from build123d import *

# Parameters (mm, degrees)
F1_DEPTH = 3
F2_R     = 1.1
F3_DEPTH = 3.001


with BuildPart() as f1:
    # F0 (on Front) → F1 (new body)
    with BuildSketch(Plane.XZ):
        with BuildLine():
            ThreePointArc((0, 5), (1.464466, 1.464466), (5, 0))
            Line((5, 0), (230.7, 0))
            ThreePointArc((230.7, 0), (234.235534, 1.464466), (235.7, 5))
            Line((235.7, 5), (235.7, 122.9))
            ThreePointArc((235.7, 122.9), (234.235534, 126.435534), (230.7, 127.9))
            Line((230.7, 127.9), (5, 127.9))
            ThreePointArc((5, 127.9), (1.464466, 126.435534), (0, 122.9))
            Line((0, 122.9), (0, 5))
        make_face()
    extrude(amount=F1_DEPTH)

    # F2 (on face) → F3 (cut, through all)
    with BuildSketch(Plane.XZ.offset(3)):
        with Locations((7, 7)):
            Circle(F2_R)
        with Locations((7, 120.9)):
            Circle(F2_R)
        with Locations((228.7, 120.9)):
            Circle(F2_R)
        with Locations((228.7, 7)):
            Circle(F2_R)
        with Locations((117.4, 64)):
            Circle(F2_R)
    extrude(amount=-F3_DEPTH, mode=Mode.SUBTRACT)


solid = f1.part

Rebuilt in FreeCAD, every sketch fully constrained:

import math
import FreeCAD as App
import Part
import Sketcher
from FreeCAD import Vector

doc = App.newDocument("Part")
body = doc.addObject("PartDesign::Body", "Body")

sketch1 = body.newObject("Sketcher::SketchObject", "Sketch")
sketch1.AttachmentSupport = (doc.getObject("XZ_Plane"), [""])
sketch1.MapMode = "FlatFace"
sketch1.addGeometry([
    Part.ArcOfCircle(Part.Circle(Vector(5, 5, 0), Vector(0, 0, 1), 5), math.radians(180), math.radians(270)),
    Part.LineSegment(Vector(5, 0, 0), Vector(230.7, 0, 0)),
    Part.ArcOfCircle(Part.Circle(Vector(230.7, 5, 0), Vector(0, 0, 1), 5), math.radians(-90), math.radians(0)),
    Part.LineSegment(Vector(235.7, 5, 0), Vector(235.7, 122.9, 0)),
    Part.ArcOfCircle(Part.Circle(Vector(230.7, 122.9, 0), Vector(0, 0, 1), 5), math.radians(0), math.radians(90)),
    Part.LineSegment(Vector(230.7, 127.9, 0), Vector(5, 127.9, 0)),
    Part.ArcOfCircle(Part.Circle(Vector(5, 122.9, 0), Vector(0, 0, 1), 5), math.radians(90), math.radians(180)),
    Part.LineSegment(Vector(0, 122.9, 0), Vector(0, 5, 0)),
], False)
sketch1.addConstraint([
    Sketcher.Constraint("Tangent", 0, 2, 1, 1),
    Sketcher.Constraint("Tangent", 1, 2, 2, 1),
    Sketcher.Constraint("Tangent", 2, 2, 3, 1),
    Sketcher.Constraint("Tangent", 3, 2, 4, 1),
    Sketcher.Constraint("Tangent", 4, 2, 5, 1),
    Sketcher.Constraint("Tangent", 5, 2, 6, 1),
    Sketcher.Constraint("Tangent", 6, 2, 7, 1),
    Sketcher.Constraint("Tangent", 7, 2, 0, 1),
    Sketcher.Constraint("Horizontal", 1),
    Sketcher.Constraint("Vertical", 3),
    Sketcher.Constraint("Horizontal", 5),
    Sketcher.Constraint("Vertical", 7),
    Sketcher.Constraint("Equal", 0, 2),
    Sketcher.Constraint("Equal", 2, 4),
    Sketcher.Constraint("Equal", 4, 6),
    Sketcher.Constraint("PointOnObject", 0, 2, -1),
    Sketcher.Constraint("PointOnObject", 6, 2, -2),
    Sketcher.Constraint("Radius", 0, 5.0),
    Sketcher.Constraint("DistanceX", 1, 1, 1, 2, 225.7),
    Sketcher.Constraint("DistanceY", 3, 1, 3, 2, 117.9),
])
pad1 = body.newObject("PartDesign::Pad", "Pad")
pad1.Profile = sketch1
pad1.Length = 3

sketch2 = body.newObject("Sketcher::SketchObject", "Sketch001")
sketch2.AttachmentSupport = (doc.getObject("XZ_Plane"), [""])
sketch2.MapMode = "FlatFace"
sketch2.AttachmentOffset = App.Placement(Vector(0, 0, 3), App.Rotation())
sketch2.addGeometry([
    Part.Circle(Vector(7, 7, 0), Vector(0, 0, 1), 1.1),
    Part.Circle(Vector(7, 120.9, 0), Vector(0, 0, 1), 1.1),
    Part.Circle(Vector(228.7, 120.9, 0), Vector(0, 0, 1), 1.1),
    Part.Circle(Vector(228.7, 7, 0), Vector(0, 0, 1), 1.1),
    Part.Circle(Vector(117.4, 64, 0), Vector(0, 0, 1), 1.1),
], False)
sketch2.addConstraint([
    Sketcher.Constraint("Equal", 0, 1),
    Sketcher.Constraint("Equal", 1, 2),
    Sketcher.Constraint("Equal", 2, 3),
    Sketcher.Constraint("Equal", 3, 4),
    Sketcher.Constraint("Horizontal", 1, 3, 2, 3),
    Sketcher.Constraint("Horizontal", 0, 3, 3, 3),
    Sketcher.Constraint("Vertical", 0, 3, 1, 3),
    Sketcher.Constraint("Vertical", 2, 3, 3, 3),
    Sketcher.Constraint("Diameter", 0, 2.2),
    Sketcher.Constraint("DistanceX", -1, 1, 0, 3, 7.0),
    Sketcher.Constraint("DistanceY", -1, 1, 0, 3, 7.0),
    Sketcher.Constraint("DistanceY", -1, 1, 4, 3, 64.0),
    Sketcher.Constraint("DistanceY", -1, 1, 1, 3, 120.9),
    Sketcher.Constraint("DistanceX", -1, 1, 2, 3, 228.7),
    Sketcher.Constraint("DistanceX", -1, 1, 4, 3, 117.4),
])
pocket1 = body.newObject("PartDesign::Pocket", "Pocket")
pocket1.Profile = sketch2
pocket1.Type = "ThroughAll"

doc.recompute()
